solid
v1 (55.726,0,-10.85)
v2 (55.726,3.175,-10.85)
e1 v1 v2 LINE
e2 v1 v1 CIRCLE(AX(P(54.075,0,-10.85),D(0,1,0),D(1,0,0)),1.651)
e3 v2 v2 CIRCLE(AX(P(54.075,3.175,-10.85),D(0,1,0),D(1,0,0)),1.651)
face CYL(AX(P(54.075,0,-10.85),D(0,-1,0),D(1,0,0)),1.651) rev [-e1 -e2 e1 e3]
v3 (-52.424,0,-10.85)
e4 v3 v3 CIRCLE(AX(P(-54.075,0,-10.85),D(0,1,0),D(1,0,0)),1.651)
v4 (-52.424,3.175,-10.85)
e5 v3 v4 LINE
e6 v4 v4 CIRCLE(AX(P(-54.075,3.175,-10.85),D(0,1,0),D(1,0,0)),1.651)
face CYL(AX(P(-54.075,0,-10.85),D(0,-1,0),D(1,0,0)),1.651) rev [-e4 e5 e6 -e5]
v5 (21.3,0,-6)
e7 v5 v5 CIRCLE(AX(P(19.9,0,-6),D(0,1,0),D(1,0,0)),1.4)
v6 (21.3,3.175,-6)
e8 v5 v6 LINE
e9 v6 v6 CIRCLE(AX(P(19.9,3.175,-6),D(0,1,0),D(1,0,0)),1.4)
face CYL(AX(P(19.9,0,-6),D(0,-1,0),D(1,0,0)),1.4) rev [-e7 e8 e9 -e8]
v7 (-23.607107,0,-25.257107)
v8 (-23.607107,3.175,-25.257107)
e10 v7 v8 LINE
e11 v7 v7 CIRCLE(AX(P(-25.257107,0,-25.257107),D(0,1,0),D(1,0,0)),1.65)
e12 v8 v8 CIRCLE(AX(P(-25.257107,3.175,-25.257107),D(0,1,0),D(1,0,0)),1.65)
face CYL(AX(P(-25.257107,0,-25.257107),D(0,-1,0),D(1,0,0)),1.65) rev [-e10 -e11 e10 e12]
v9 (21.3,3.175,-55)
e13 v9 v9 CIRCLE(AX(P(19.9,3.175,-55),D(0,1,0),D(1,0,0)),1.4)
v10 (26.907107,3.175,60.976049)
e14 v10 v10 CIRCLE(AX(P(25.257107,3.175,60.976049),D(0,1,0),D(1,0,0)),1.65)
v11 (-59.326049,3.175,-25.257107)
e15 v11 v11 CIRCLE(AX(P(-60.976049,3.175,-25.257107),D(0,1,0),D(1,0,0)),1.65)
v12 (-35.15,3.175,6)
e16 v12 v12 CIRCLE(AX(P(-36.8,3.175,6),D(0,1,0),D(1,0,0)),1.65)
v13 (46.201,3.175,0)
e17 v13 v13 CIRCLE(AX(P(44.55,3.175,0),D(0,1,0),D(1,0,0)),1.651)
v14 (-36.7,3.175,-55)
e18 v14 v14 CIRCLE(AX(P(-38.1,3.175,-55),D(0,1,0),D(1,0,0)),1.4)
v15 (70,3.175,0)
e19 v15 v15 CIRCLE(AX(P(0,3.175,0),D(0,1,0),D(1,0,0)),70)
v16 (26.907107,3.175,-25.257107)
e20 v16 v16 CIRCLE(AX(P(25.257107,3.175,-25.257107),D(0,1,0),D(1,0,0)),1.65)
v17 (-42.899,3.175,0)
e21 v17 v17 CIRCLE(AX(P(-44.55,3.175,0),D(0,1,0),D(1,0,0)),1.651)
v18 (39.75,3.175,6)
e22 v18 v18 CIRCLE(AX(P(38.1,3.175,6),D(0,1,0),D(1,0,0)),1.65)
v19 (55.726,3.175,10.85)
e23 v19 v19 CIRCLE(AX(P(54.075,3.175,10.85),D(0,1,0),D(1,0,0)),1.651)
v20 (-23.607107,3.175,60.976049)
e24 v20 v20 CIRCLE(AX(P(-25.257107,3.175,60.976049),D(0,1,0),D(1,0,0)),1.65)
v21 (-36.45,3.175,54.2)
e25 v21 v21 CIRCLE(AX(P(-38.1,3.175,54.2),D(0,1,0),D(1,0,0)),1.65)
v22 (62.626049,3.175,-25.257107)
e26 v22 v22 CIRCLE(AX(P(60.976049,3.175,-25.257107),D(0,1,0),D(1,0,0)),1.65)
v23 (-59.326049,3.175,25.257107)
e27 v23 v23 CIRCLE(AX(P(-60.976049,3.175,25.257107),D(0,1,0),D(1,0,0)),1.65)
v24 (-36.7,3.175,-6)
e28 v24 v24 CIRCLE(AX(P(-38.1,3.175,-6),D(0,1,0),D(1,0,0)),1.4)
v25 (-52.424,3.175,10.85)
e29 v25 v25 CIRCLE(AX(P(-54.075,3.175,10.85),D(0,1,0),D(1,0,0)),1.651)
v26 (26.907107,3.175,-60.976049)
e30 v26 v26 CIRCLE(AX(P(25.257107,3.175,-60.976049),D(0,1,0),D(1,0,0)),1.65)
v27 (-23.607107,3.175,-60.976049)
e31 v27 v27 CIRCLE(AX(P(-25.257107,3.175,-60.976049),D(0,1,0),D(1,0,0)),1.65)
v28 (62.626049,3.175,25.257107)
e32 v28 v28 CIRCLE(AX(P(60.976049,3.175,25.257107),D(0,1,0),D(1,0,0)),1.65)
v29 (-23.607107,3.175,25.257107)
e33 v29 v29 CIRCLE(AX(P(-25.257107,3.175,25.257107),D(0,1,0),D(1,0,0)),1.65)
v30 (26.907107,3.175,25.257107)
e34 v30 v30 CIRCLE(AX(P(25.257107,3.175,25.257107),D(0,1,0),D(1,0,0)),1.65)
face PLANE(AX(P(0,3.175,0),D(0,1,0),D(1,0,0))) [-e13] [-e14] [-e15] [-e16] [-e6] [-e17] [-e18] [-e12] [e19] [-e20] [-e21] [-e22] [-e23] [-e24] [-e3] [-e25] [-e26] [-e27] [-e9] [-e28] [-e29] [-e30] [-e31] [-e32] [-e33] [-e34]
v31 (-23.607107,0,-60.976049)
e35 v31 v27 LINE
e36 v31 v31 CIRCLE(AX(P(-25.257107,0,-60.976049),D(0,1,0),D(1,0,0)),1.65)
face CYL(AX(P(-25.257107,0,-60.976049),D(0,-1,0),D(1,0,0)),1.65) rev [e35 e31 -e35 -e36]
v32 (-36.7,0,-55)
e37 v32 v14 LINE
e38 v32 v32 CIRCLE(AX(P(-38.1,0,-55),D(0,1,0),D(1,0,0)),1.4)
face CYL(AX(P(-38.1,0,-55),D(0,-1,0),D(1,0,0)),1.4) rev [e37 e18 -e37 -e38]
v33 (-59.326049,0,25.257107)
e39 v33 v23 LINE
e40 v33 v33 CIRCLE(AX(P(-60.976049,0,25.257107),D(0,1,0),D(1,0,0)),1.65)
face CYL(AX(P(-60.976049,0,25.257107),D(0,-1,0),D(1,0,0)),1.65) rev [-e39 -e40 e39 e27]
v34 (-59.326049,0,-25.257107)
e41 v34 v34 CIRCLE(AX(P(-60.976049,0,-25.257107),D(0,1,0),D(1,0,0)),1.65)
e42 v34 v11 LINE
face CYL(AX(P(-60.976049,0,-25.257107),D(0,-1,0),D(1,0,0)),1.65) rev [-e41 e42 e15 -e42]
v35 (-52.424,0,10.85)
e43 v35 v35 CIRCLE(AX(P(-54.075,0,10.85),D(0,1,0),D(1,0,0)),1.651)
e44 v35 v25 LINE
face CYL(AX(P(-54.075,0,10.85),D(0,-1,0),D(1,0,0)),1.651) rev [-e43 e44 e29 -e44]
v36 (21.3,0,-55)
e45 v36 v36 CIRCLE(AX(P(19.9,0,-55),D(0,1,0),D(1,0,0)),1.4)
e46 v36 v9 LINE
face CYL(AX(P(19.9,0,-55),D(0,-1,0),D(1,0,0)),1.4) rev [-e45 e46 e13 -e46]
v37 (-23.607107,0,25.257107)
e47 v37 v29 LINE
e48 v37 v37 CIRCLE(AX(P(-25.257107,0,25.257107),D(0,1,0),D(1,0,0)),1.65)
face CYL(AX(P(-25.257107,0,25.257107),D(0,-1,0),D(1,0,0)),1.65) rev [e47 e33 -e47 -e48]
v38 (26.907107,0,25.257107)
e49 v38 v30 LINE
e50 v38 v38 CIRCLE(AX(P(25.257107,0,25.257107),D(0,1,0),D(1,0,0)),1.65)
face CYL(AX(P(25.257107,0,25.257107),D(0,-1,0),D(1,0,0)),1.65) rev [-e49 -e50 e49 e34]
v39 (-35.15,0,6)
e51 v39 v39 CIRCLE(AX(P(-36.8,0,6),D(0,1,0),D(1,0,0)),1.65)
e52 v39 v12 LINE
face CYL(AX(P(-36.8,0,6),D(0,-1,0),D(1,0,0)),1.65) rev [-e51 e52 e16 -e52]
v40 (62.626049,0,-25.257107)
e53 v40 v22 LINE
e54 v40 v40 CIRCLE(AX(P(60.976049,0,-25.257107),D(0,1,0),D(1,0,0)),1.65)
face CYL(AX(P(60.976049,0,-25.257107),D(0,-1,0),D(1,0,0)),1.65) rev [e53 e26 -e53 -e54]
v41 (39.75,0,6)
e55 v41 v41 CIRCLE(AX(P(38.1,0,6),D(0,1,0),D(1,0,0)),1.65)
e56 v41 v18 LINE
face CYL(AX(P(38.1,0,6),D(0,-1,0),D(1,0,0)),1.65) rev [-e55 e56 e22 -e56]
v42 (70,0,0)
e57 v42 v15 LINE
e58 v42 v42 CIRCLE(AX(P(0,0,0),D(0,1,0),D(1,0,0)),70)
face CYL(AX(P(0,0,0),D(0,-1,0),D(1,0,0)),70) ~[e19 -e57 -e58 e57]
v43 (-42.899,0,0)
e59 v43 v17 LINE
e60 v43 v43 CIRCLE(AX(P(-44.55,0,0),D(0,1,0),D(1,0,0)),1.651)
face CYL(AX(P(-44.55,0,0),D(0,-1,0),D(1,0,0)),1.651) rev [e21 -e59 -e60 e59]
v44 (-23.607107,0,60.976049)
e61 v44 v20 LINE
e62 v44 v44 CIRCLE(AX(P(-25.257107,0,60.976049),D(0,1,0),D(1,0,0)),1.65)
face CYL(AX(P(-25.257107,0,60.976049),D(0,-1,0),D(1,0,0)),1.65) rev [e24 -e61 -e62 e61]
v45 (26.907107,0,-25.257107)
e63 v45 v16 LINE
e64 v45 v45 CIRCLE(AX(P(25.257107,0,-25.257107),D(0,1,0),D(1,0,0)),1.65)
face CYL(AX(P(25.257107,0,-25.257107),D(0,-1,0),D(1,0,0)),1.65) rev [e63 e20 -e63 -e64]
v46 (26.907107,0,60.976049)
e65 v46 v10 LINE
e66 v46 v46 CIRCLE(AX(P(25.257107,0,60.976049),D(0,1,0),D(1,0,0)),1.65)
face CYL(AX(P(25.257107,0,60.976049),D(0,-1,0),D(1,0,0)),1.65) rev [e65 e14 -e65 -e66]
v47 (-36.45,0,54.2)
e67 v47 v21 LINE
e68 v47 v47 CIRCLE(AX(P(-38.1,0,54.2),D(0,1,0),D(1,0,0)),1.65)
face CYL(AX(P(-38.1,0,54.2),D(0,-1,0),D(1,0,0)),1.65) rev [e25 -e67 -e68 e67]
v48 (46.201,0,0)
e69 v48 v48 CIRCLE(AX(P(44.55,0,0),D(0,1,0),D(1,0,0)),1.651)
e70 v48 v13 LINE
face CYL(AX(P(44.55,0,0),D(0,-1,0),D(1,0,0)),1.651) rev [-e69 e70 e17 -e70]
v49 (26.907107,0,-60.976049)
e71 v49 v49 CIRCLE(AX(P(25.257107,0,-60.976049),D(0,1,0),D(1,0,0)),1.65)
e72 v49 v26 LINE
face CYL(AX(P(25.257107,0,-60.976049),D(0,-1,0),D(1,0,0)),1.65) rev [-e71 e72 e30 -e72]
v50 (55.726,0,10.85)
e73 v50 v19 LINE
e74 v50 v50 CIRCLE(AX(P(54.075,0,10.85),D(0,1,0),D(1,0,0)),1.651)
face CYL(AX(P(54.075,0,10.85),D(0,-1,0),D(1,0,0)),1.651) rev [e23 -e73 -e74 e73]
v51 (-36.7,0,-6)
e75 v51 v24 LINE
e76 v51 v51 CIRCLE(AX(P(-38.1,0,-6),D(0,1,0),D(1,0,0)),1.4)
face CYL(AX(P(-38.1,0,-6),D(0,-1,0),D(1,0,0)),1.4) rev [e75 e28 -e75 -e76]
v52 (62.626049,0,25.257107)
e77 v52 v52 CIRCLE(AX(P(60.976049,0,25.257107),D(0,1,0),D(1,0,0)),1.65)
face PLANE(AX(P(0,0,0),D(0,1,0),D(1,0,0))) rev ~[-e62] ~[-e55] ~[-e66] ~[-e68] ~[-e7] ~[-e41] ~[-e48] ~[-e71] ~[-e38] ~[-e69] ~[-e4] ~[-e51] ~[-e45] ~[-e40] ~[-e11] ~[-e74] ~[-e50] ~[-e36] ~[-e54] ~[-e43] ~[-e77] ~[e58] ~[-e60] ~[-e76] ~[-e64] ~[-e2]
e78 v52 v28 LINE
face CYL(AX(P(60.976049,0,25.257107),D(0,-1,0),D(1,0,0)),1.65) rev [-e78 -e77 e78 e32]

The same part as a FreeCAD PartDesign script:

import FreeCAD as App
import Part
import Sketcher
from FreeCAD import Vector
Q = App.Units.Quantity

doc = App.newDocument("Part")
params = doc.addObject("Spreadsheet::Sheet", "Params")
for row, (alias, value) in enumerate([
    ("sketch1_diameter", "140 mm"),
    ("pad1_length", "3.175 mm"),
    ("sketch2_diameter", "3.3 mm"),
    ("pocket1_length", "3.175 mm"),
    ("sketch3_diameter", "2.8 mm"),
    ("sketch3_diameter2", "3.3 mm"),
    ("pocket2_length", "3.175 mm"),
], start=1):
    params.set(f"A{row}", alias)
    params.set(f"B{row}", "=" + value)
    params.setAlias(f"B{row}", alias)

body = doc.addObject("PartDesign::Body", "Body")

sketch1 = body.newObject("Sketcher::SketchObject", "Sketch")
sketch1.AttachmentSupport = (doc.getObject("XZ_Plane"), [""])
sketch1.MapMode = "FlatFace"
sketch1.addGeometry(Part.Circle(Vector(0, 0, 0), Vector(0, 0, 1), 70), False)
sketch1.addGeometry(Part.Circle(Vector(-54.1, 10.8, 0), Vector(0, 0, 1), 1.7), False)
sketch1.addGeometry(Part.Circle(Vector(54.1, 10.8, 0), Vector(0, 0, 1), 1.7), False)
sketch1.addGeometry(Part.Circle(Vector(-44.5, 0, 0), Vector(0, 0, 1), 1.7), False)
sketch1.addGeometry(Part.Circle(Vector(-54.1, -10.8, 0), Vector(0, 0, 1), 1.7), False)
sketch1.addGeometry(Part.Circle(Vector(44.5, 0, 0), Vector(0, 0, 1), 1.7), False)
sketch1.addGeometry(Part.Circle(Vector(54.1, -10.8, 0), Vector(0, 0, 1), 1.7), False)
sketch1.addConstraint(Sketcher.Constraint("Coincident", 0, 3, -1, 1))
sketch1.addConstraint(Sketcher.Constraint("Equal", 1, 2))
sketch1.addConstraint(Sketcher.Constraint("Equal", 2, 3))
sketch1.addConstraint(Sketcher.Constraint("Equal", 3, 4))
sketch1.addConstraint(Sketcher.Constraint("Equal", 4, 5))
sketch1.addConstraint(Sketcher.Constraint("Equal", 5, 6))
sketch1.addConstraint(Sketcher.Constraint("Symmetric", 2, 3, 4, 3, -1, 1))
sketch1.addConstraint(Sketcher.Constraint("Symmetric", 3, 3, 5, 3, -1, 1))
sketch1.addConstraint(Sketcher.Constraint("Symmetric", 1, 3, 6, 3, -1, 1))
sketch1.addConstraint(Sketcher.Constraint("Symmetric", 1, 3, 2, 3, -2))
sketch1.addConstraint(Sketcher.Constraint("PointOnObject", 3, 3, -1))
sketch1.addConstraint(Sketcher.Constraint("Diameter", 0, Q("140 mm")))
sketch1.addConstraint(Sketcher.Constraint("Diameter", 1, Q("3.302 mm")))
sketch1.addConstraint(Sketcher.Constraint("DistanceY", 4, 3, 1, 3, Q("21.7 mm")))
sketch1.addConstraint(Sketcher.Constraint("DistanceX", 3, 3, 5, 3, Q("89.1 mm")))
sketch1.addConstraint(Sketcher.Constraint("DistanceX", 1, 3, 2, 3, Q("108.15 mm")))
sketch1.setExpression("Constraints[11]", "Params.sketch1_diameter")
pad1 = body.newObject("PartDesign::Pad", "Pad")
pad1.Profile = sketch1
pad1.setExpression("Length", "Params.pad1_length")
pad1.Reversed = True

sketch2 = body.newObject("Sketcher::SketchObject", "Sketch001")
sketch2.AttachmentSupport = (doc.getObject("XZ_Plane"), [""])
sketch2.MapMode = "FlatFace"
sketch2.addGeometry(Part.Circle(Vector(25.3, -61, 0), Vector(0, 0, 1), 1.6), False)
sketch2.addGeometry(Part.Circle(Vector(61, -25.3, 0), Vector(0, 0, 1), 1.6), False)
sketch2.addGeometry(Part.Circle(Vector(25.3, -25.3, 0), Vector(0, 0, 1), 1.6), False)
sketch2.addGeometry(Part.Circle(Vector(25.3, 25.3, 0), Vector(0, 0, 1), 1.6), False)
sketch2.addGeometry(Part.Circle(Vector(61, 25.3, 0), Vector(0, 0, 1), 1.6), False)
sketch2.addGeometry(Part.Circle(Vector(25.3, 61, 0), Vector(0, 0, 1), 1.6), False)
sketch2.addGeometry(Part.Circle(Vector(-25.3, 61, 0), Vector(0, 0, 1), 1.6), False)
sketch2.addGeometry(Part.Circle(Vector(-61, 25.3, 0), Vector(0, 0, 1), 1.6), False)
sketch2.addGeometry(Part.Circle(Vector(-25.3, 25.3, 0), Vector(0, 0, 1), 1.6), False)
sketch2.addGeometry(Part.Circle(Vector(-25.3, -25.3, 0), Vector(0, 0, 1), 1.6), False)
sketch2.addGeometry(Part.Circle(Vector(-61, -25.3, 0), Vector(0, 0, 1), 1.6), False)
sketch2.addGeometry(Part.Circle(Vector(-25.3, -61, 0), Vector(0, 0, 1), 1.6), False)
sketch2.addConstraint(Sketcher.Constraint("Equal", 0, 1))
sketch2.addConstraint(Sketcher.Constraint("Equal", 1, 2))
sketch2.addConstraint(Sketcher.Constraint("Equal", 2, 3))
sketch2.addConstraint(Sketcher.Constraint("Equal", 3, 4))
sketch2.addConstraint(Sketcher.Constraint("Equal", 4, 5))
sketch2.addConstraint(Sketcher.Constraint("Equal", 5, 6))
sketch2.addConstraint(Sketcher.Constraint("Equal", 6, 7))
sketch2.addConstraint(Sketcher.Constraint("Equal", 7, 8))
sketch2.addConstraint(Sketcher.Constraint("Equal", 8, 9))
sketch2.addConstraint(Sketcher.Constraint("Equal", 9, 10))
sketch2.addConstraint(Sketcher.Constraint("Equal", 10, 11))
sketch2.addConstraint(Sketcher.Constraint("Symmetric", 0, 3, 6, 3, -1, 1))
sketch2.addConstraint(Sketcher.Constraint("Symmetric", 1, 3, 7, 3, -1, 1))
sketch2.addConstraint(Sketcher.Constraint("Symmetric", 2, 3, 8, 3, -1, 1))
sketch2.addConstraint(Sketcher.Constraint("Symmetric", 3, 3, 9, 3, -1, 1))
sketch2.addConstraint(Sketcher.Constraint("Symmetric", 4, 3, 10, 3, -1, 1))
sketch2.addConstraint(Sketcher.Constraint("Symmetric", 5, 3, 11, 3, -1, 1))
sketch2.addConstraint(Sketcher.Constraint("Symmetric", 5, 3, 6, 3, -2))
sketch2.addConstraint(Sketcher.Constraint("Symmetric", 4, 3, 7, 3, -2))
sketch2.addConstraint(Sketcher.Constraint("Symmetric", 3, 3, 8, 3, -2))
sketch2.addConstraint(Sketcher.Constraint("Horizontal", 1, 3, 2, 3))
sketch2.addConstraint(Sketcher.Constraint("Vertical", 0, 3, 2, 3))
sketch2.addConstraint(Sketcher.Constraint("Diameter", 0, Q("3.3 mm")))
sketch2.addConstraint(Sketcher.Constraint("DistanceY", 0, 3, 5, 3, Q("121.952098 mm")))
sketch2.addConstraint(Sketcher.Constraint("DistanceX", -1, 1, 1, 3, Q("60.976049 mm")))
sketch2.addConstraint(Sketcher.Constraint("DistanceX", -1, 1, 0, 3, Q("25.257107 mm")))
sketch2.addConstraint(Sketcher.Constraint("DistanceY", 1, 3, -1, 1, Q("25.257107 mm")))
sketch2.setExpression("Constraints[22]", "Params.sketch2_diameter")
pocket1 = body.newObject("PartDesign::Pocket", "Pocket")
pocket1.Profile = sketch2
pocket1.setExpression("Length", "Params.pocket1_length")

sketch3 = body.newObject("Sketcher::SketchObject", "Sketch002")
sketch3.AttachmentSupport = (doc.getObject("XZ_Plane"), [""])
sketch3.MapMode = "FlatFace"
sketch3.addGeometry(Part.Circle(Vector(-38.1, -55, 0), Vector(0, 0, 1), 1.4), False)
sketch3.addGeometry(Part.Circle(Vector(19.9, -55, 0), Vector(0, 0, 1), 1.4), False)
sketch3.addGeometry(Part.Circle(Vector(19.9, -6, 0), Vector(0, 0, 1), 1.4), False)
sketch3.addGeometry(Part.Circle(Vector(-38.1, -6, 0), Vector(0, 0, 1), 1.4), False)
sketch3.addGeometry(Part.Circle(Vector(-38.1, 54.2, 0), Vector(0, 0, 1), 1.6), False)
sketch3.addGeometry(Part.Circle(Vector(-36.8, 6, 0), Vector(0, 0, 1), 1.6), False)
sketch3.addGeometry(Part.Circle(Vector(38.1, 6, 0), Vector(0, 0, 1), 1.6), False)
sketch3.addConstraint(Sketcher.Constraint("Equal", 0, 1))
sketch3.addConstraint(Sketcher.Constraint("Equal", 1, 2))
sketch3.addConstraint(Sketcher.Constraint("Equal", 2, 3))
sketch3.addConstraint(Sketcher.Constraint("Equal", 4, 5))
sketch3.addConstraint(Sketcher.Constraint("Equal", 5, 6))
sketch3.addConstraint(Sketcher.Constraint("Symmetric", 3, 3, 6, 3, -1, 1))
sketch3.addConstraint(Sketcher.Constraint("Horizontal", 0, 3, 1, 3))
sketch3.addConstraint(Sketcher.Constraint("Horizontal", 2, 3, 3, 3))
sketch3.addConstraint(Sketcher.Constraint("Horizontal", 5, 3, 6, 3))
sketch3.addConstraint(Sketcher.Constraint("Vertical", 1, 3, 2, 3))
sketch3.addConstraint(Sketcher.Constraint("Vertical", 0, 3, 3, 3))
sketch3.addConstraint(Sketcher.Constraint("Vertical", 3, 3, 4, 3))
sketch3.addConstraint(Sketcher.Constraint("Diameter", 0, Q("2.8 mm")))
sketch3.addConstraint(Sketcher.Constraint("Diameter", 4, Q("3.3 mm")))
sketch3.addConstraint(Sketcher.Constraint("DistanceY", 0, 3, -1, 1, Q("55 mm")))
sketch3.addConstraint(Sketcher.Constraint("DistanceY", 2, 3, -1, 1, Q("6 mm")))
sketch3.addConstraint(Sketcher.Constraint("DistanceX", 0, 3, 1, 3, Q("58 mm")))
sketch3.addConstraint(Sketcher.Constraint("DistanceX", 0, 3, -1, 1, Q("38.1 mm")))
sketch3.addConstraint(Sketcher.Constraint("DistanceY", -1, 1, 4, 3, Q("54.2 mm")))
sketch3.addConstraint(Sketcher.Constraint("DistanceX", 5, 3, -1, 1, Q("36.8 mm")))
sketch3.setExpression("Constraints[12]", "Params.sketch3_diameter")
sketch3.setExpression("Constraints[13]", "Params.sketch3_diameter2")
pocket2 = body.newObject("PartDesign::Pocket", "Pocket001")
pocket2.Profile = sketch3
pocket2.setExpression("Length", "Params.pocket2_length")

doc.recompute()
